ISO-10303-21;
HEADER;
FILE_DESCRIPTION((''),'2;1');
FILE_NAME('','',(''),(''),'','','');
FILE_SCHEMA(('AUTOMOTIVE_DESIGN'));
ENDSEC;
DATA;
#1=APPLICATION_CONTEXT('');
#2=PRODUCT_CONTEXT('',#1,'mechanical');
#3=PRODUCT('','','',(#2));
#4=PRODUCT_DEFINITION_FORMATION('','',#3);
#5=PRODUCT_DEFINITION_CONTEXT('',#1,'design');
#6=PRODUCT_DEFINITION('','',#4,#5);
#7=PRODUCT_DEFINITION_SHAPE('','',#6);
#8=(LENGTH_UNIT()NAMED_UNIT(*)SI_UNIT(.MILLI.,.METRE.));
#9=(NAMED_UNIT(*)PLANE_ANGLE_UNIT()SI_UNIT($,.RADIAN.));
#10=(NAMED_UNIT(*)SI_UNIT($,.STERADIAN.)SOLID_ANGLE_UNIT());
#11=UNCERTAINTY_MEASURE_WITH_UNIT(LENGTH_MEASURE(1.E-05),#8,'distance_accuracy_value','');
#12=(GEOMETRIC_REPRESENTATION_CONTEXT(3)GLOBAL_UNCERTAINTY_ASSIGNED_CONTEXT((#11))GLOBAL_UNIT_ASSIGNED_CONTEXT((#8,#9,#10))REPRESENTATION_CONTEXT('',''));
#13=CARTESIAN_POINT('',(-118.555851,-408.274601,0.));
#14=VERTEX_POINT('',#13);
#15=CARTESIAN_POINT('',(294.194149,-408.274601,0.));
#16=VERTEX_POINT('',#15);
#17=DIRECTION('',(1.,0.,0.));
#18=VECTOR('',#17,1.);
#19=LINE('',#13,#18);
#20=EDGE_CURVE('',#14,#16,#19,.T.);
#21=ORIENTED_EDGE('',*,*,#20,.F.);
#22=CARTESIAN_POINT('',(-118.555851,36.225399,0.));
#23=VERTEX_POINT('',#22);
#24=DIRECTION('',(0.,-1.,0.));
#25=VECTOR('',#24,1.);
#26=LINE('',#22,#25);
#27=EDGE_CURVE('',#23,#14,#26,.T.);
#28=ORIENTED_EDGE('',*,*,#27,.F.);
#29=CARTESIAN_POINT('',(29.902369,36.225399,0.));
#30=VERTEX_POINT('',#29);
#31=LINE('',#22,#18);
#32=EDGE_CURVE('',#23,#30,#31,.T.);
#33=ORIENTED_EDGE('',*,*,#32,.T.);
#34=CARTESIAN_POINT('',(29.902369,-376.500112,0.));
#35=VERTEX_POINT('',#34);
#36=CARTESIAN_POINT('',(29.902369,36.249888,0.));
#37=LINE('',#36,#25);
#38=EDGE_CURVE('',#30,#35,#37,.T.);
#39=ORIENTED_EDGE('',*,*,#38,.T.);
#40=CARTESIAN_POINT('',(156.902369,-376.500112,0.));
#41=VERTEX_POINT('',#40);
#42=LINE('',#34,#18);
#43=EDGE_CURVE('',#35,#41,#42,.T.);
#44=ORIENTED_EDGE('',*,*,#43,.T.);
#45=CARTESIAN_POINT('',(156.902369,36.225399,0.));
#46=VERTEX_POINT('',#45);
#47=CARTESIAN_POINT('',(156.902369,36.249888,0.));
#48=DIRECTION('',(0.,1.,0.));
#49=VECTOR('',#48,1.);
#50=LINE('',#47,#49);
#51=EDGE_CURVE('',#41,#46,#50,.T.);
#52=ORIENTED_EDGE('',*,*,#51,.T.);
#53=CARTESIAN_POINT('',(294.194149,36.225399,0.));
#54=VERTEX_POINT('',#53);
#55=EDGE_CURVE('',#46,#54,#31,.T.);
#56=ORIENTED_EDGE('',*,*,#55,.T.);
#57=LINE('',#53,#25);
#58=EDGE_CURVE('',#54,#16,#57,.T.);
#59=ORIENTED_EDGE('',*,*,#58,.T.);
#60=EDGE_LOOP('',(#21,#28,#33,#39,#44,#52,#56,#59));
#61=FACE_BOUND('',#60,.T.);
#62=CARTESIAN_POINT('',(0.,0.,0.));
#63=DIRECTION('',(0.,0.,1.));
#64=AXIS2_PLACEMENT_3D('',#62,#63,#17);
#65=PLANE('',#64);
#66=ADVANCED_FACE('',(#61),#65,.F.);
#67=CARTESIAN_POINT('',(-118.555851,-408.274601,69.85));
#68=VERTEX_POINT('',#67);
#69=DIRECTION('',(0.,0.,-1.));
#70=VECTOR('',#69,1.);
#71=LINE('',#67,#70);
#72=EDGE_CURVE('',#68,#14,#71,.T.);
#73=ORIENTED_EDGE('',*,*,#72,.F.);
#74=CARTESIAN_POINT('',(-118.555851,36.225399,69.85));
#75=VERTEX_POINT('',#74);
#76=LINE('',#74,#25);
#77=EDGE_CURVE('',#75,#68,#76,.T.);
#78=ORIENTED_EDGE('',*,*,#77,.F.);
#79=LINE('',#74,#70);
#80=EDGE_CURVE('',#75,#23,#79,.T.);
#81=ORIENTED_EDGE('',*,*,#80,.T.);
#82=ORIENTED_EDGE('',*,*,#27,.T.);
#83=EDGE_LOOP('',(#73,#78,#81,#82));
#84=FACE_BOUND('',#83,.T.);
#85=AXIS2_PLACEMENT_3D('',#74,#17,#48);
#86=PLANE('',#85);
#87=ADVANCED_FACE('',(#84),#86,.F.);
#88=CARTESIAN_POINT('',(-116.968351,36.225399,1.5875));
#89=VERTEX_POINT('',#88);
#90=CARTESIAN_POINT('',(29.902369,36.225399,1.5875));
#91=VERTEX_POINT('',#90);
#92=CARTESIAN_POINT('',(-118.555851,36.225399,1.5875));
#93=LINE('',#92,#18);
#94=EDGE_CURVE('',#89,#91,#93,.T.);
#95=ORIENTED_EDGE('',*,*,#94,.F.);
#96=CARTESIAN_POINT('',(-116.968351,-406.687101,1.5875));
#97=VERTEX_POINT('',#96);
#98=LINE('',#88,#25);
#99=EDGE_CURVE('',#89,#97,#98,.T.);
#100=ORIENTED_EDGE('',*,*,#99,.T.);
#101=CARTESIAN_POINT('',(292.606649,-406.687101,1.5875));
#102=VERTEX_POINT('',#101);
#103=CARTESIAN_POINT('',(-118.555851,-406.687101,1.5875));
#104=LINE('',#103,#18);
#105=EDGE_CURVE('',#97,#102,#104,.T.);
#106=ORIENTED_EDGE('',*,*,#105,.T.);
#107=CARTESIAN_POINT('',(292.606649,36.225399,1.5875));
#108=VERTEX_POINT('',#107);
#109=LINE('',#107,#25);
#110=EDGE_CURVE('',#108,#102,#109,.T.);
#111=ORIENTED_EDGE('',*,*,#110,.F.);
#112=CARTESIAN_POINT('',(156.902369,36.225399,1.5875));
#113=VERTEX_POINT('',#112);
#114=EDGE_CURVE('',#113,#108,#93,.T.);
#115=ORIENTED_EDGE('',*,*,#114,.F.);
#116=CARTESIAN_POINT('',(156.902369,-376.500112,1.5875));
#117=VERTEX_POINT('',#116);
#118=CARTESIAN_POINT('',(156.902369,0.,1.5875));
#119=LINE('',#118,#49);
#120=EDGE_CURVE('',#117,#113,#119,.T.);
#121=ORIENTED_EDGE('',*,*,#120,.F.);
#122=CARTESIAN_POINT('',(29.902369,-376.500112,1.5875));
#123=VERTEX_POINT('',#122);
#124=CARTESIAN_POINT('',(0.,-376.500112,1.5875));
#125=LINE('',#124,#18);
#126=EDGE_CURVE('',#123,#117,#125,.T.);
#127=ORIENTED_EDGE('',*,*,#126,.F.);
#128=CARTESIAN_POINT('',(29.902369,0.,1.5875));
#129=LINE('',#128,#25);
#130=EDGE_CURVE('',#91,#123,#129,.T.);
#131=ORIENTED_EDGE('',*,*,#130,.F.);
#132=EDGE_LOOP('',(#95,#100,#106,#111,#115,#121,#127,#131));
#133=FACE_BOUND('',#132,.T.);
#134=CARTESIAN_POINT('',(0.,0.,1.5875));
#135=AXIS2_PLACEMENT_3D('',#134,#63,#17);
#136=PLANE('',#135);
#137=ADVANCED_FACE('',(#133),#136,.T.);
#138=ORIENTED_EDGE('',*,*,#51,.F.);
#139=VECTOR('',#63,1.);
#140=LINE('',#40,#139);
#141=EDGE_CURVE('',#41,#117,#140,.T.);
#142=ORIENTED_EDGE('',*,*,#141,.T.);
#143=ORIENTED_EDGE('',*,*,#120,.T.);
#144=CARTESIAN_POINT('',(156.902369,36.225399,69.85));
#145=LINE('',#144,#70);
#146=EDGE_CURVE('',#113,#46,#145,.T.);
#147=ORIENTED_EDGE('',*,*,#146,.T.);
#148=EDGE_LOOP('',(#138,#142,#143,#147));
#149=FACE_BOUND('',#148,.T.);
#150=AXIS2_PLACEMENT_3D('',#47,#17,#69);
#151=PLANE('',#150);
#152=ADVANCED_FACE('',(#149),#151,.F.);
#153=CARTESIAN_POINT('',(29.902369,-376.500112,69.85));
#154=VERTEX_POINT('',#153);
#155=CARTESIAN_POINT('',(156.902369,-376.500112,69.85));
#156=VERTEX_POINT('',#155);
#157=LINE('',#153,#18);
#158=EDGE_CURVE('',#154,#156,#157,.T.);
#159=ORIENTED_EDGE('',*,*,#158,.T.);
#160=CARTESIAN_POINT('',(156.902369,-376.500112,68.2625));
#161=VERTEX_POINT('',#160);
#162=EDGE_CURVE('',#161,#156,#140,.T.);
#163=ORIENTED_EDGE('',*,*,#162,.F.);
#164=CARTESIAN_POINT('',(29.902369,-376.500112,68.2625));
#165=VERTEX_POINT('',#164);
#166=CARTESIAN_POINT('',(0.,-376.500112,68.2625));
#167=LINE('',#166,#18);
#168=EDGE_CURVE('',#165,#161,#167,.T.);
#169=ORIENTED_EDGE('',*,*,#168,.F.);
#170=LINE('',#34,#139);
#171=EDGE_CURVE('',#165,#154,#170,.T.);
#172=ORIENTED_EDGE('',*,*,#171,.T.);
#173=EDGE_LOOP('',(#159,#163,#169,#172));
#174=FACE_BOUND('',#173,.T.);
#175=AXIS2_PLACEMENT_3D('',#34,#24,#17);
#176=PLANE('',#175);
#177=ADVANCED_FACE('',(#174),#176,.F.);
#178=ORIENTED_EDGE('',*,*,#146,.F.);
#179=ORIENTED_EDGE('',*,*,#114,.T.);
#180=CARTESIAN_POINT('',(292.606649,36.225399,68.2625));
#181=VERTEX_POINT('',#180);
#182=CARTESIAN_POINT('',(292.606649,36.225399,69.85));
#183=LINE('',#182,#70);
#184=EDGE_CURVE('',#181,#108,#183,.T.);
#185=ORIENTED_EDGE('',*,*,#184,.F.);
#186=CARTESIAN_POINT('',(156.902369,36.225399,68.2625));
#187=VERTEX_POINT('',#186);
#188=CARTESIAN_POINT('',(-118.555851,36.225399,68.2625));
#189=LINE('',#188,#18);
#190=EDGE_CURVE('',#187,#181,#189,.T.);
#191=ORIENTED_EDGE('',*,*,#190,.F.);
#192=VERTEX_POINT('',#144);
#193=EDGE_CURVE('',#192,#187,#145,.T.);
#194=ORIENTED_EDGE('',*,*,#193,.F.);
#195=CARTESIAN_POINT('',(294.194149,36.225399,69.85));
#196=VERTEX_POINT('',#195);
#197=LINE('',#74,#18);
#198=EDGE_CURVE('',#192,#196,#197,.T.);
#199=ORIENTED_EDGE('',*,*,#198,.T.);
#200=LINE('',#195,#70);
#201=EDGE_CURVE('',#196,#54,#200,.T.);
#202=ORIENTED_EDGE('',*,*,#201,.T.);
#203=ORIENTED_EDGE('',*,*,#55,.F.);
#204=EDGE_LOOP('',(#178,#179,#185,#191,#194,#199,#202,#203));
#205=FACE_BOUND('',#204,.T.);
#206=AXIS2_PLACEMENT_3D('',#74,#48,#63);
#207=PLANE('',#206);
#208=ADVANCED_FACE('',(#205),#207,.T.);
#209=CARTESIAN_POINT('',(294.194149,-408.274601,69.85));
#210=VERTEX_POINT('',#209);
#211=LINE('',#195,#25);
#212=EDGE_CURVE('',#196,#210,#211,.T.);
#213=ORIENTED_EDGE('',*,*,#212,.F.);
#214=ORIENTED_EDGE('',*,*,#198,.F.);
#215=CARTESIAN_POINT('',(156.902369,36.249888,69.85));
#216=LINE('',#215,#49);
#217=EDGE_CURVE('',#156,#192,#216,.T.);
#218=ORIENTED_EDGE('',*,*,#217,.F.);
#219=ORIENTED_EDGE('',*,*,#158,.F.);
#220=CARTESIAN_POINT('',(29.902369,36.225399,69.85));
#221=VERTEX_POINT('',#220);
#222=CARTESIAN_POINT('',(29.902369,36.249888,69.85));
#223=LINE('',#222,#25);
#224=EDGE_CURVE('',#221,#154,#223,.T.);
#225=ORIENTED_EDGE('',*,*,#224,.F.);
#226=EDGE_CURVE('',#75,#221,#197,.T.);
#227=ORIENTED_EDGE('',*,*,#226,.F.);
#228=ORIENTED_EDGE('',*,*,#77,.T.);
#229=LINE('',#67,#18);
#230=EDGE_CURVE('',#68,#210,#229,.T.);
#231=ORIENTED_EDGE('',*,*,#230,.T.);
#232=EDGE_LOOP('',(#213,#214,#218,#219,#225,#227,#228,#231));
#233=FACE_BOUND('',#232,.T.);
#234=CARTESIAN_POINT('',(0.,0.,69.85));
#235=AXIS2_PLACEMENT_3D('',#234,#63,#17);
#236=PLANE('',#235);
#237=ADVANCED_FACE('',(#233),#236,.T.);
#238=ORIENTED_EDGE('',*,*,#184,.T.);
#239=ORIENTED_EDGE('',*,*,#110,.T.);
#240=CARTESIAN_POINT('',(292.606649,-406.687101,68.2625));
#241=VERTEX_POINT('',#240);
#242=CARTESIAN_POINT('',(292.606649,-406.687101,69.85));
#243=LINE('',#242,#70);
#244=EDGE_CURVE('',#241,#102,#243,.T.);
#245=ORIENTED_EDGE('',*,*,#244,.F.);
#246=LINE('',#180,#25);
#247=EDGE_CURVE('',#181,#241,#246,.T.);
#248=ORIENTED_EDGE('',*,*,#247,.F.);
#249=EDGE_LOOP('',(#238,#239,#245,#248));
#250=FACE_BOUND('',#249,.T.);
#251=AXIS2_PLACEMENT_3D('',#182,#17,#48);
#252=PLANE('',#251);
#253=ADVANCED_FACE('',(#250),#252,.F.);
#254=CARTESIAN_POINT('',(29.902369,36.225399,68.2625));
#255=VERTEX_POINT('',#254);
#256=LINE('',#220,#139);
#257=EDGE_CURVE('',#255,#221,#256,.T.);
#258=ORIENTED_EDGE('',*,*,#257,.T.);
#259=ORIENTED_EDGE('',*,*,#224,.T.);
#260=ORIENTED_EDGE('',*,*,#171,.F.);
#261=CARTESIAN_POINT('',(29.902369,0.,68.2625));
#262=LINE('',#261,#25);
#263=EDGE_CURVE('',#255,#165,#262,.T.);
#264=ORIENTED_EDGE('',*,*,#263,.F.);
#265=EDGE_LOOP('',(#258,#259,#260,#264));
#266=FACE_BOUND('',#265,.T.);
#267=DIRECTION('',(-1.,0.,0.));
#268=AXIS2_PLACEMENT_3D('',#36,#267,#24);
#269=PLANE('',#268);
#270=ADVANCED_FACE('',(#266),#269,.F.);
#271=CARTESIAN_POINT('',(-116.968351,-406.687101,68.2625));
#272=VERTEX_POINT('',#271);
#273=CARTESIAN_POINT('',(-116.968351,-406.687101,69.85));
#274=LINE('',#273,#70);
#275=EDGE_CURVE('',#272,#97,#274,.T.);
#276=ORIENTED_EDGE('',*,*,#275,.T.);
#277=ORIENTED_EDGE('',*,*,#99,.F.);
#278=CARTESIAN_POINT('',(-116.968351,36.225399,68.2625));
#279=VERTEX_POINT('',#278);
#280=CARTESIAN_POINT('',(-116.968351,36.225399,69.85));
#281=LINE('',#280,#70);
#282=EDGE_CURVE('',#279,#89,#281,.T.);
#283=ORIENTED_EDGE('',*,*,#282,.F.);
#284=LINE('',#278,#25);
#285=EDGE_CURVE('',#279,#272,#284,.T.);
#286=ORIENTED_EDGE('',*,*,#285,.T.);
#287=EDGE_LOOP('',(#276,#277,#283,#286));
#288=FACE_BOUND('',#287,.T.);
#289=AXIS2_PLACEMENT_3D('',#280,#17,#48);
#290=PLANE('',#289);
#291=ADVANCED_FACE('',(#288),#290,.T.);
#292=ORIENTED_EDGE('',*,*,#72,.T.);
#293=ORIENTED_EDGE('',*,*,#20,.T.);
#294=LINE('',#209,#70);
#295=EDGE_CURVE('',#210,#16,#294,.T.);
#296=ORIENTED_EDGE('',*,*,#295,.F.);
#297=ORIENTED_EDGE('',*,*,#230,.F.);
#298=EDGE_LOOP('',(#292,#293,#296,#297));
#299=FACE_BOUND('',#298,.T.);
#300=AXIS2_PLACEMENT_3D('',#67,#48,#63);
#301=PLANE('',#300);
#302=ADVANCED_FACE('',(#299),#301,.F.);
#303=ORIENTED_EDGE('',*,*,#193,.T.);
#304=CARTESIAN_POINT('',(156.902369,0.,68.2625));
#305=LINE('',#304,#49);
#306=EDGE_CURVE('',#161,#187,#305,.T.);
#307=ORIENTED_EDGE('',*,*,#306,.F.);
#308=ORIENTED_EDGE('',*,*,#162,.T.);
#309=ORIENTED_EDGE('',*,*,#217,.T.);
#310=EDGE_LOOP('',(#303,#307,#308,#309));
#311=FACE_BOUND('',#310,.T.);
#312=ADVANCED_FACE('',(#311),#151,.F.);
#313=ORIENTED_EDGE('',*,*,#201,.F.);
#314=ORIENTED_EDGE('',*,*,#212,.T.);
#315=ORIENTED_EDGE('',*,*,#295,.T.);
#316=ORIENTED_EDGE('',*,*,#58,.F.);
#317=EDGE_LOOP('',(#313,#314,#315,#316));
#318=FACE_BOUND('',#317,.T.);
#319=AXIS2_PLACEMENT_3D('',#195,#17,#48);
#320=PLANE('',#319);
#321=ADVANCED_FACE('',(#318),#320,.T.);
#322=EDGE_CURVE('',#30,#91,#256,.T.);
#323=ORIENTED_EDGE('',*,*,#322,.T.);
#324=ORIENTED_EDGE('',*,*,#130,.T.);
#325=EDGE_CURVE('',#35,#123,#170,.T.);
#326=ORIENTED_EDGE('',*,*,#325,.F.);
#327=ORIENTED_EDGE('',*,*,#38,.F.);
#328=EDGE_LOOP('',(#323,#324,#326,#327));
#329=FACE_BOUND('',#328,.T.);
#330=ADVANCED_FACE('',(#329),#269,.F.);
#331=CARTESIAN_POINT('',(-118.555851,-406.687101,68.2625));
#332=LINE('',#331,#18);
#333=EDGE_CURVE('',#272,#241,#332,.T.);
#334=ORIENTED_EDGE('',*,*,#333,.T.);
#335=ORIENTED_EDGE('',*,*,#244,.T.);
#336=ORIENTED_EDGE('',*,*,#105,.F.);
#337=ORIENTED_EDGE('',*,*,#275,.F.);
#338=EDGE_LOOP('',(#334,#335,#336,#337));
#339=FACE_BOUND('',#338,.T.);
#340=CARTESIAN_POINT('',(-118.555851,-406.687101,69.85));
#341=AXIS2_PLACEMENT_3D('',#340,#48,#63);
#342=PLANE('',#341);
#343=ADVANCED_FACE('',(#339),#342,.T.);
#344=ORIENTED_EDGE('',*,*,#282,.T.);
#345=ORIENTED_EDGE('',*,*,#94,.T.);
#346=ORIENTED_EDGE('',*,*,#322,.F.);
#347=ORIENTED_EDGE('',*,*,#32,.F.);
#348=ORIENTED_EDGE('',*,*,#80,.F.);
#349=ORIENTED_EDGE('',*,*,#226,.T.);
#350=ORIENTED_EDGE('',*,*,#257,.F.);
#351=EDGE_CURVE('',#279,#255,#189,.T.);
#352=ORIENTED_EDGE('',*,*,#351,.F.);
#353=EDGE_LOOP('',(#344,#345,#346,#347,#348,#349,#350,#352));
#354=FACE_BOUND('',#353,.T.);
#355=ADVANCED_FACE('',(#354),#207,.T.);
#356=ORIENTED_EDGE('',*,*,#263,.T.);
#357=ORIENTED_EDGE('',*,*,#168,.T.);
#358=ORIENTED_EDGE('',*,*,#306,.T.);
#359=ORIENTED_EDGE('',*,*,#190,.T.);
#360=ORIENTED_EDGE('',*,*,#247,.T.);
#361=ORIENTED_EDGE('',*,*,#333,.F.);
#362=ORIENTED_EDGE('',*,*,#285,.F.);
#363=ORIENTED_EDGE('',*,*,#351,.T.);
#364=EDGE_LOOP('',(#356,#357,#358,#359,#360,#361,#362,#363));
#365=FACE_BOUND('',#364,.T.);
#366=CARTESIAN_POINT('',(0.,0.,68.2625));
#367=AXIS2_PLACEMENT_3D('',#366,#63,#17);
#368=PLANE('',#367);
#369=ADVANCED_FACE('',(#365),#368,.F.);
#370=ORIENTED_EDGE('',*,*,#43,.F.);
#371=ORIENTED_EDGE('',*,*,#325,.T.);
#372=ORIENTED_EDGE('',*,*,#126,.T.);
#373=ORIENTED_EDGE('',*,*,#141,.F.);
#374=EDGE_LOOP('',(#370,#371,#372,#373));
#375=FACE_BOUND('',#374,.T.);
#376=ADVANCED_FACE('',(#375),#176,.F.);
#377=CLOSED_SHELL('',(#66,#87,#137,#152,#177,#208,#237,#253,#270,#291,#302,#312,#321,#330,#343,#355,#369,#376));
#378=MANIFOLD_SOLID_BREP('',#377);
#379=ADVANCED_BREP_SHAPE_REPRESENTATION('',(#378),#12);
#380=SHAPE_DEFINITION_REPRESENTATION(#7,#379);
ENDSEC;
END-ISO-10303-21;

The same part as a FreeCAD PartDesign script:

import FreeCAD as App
import Part
import Sketcher
from FreeCAD import Vector
Q = App.Units.Quantity


def faces_at(feature, points):
    """Names of the faces that lie closest to the given points."""
    faces = feature.Shape.Faces
    near = lambda p: min(range(len(faces)), key=lambda i: faces[i].distToShape(Part.Vertex(*p))[0])
    return sorted({f"Face{near(p) + 1}" for p in points})


def add_polygon(sketch, points):
    """Adds a closed chain of lines whose ends are joined by coincident constraints."""
    first, n = sketch.GeometryCount, len(points)
    for a, b in zip(points, points[1:] + points[:1]):
        sketch.addGeometry(Part.LineSegment(App.Vector(*a, 0), App.Vector(*b, 0)), False)
    for i in range(n):
        sketch.addConstraint(Sketcher.Constraint("Coincident", first + i, 2, first + (i + 1) % n, 1))

doc = App.newDocument("Part")
body = doc.addObject("PartDesign::Body", "Body")

sketch1 = body.newObject("Sketcher::SketchObject", "Sketch")
sketch1.AttachmentSupport = (doc.getObject("XY_Plane"), [""])
sketch1.MapMode = "FlatFace"
add_polygon(sketch1, [(-119, 36), (-119, -408), (294, -408), (294, 36)])
sketch1.addConstraint([
    Sketcher.Constraint("Vertical", 0),
    Sketcher.Constraint("Horizontal", 1),
    Sketcher.Constraint("Vertical", 2),
    Sketcher.Constraint("Horizontal", 3),
    Sketcher.Constraint("DistanceY", 0, 2, 0, 1, Q("17.5 in")),
    Sketcher.Constraint("DistanceX", 1, 1, 1, 2, Q("16.25 in")),
    Sketcher.Constraint("DistanceY", 0, 2, -1, 1, 408.274601),
    Sketcher.Constraint("DistanceX", 0, 2, -1, 1, 118.555851),
])
pad1 = body.newObject("PartDesign::Pad", "Pad")
pad1.Profile = sketch1
pad1.Length = Q("2.75 in")
doc.recompute()

thickness = body.newObject("PartDesign::Thickness", "Thickness")
thickness.Base = (pad1, faces_at(pad1, [(87.819, 36.225, 34.925)]))
thickness.Value = Q("0.0625 in")
thickness.Reversed = True
thickness.Join = "Intersection"

sketch2 = body.newObject("Sketcher::SketchObject", "Sketch001")
sketch2.AttachmentSupport = (doc.getObject("XY_Plane"), [""])
sketch2.MapMode = "FlatFace"
sketch2.AttachmentOffset = App.Placement(Vector(0, 0, 2.75 * 25.4), App.Rotation())
add_polygon(sketch2, [(30, 36), (30, -377), (157, -377), (157, 36)])
sketch2.addConstraint([
    Sketcher.Constraint("Vertical", 0),
    Sketcher.Constraint("Horizontal", 1),
    Sketcher.Constraint("Vertical", 2),
    Sketcher.Constraint("Horizontal", 3),
    Sketcher.Constraint("DistanceX", 1, 1, 1, 2, Q("5 in")),
    Sketcher.Constraint("DistanceY", 0, 2, 0, 1, Q("16.25 in")),
    Sketcher.Constraint("DistanceX", -1, 1, 0, 2, 29.902369),
    Sketcher.Constraint("DistanceY", 0, 2, -1, 1, 376.500112),
])
pocket1 = body.newObject("PartDesign::Pocket", "Pocket")
pocket1.Profile = sketch2
pocket1.Length = Q("2.75 in")

doc.recompute()
